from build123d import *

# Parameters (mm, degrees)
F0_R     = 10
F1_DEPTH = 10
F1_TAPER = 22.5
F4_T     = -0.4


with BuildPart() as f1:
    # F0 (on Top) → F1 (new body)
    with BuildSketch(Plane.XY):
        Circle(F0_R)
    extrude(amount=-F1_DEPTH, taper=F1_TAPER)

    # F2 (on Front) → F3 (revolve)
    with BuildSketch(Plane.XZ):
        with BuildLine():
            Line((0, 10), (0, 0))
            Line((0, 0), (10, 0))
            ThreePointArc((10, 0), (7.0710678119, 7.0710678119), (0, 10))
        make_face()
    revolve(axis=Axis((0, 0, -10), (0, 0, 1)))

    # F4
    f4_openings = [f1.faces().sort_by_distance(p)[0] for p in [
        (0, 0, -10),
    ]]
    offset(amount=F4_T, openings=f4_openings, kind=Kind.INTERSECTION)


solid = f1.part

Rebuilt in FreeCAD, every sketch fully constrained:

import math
import FreeCAD as App
import Part
import Sketcher
from FreeCAD import Vector


def faces_at(feature, points):
    """Names of the faces that lie closest to the given points."""
    faces = feature.Shape.Faces
    near = lambda p: min(range(len(faces)), key=lambda i: faces[i].distToShape(Part.Vertex(*p))[0])
    return sorted({f"Face{near(p) + 1}" for p in points})

doc = App.newDocument("Part")
body = doc.addObject("PartDesign::Body", "Body")

# Sketch on XY plane
sketch1 = body.newObject("Sketcher::SketchObject", "Sketch")
sketch1.AttachmentSupport = (doc.getObject("XY_Plane"), [""])
sketch1.MapMode = "FlatFace"
sketch1.addGeometry(Part.Circle(Vector(0, 0, 0), Vector(0, 0, 1), 10), False)
sketch1.addConstraint([
    Sketcher.Constraint("Coincident", 0, 3, -1, 1),
    Sketcher.Constraint("Diameter", 0, 20.0),
])
pad1 = body.newObject("PartDesign::Pad", "Pad")
pad1.Profile = sketch1
pad1.Length = 10
pad1.Reversed = True
pad1.TaperAngle = -22.5

# Sketch on XZ plane
sketch2 = body.newObject("Sketcher::SketchObject", "Sketch001")
sketch2.AttachmentSupport = (doc.getObject("XZ_Plane"), [""])
sketch2.MapMode = "FlatFace"
sketch2.addGeometry([
    Part.LineSegment(Vector(0, 10, 0), Vector(0, 0, 0)),
    Part.LineSegment(Vector(0, 0, 0), Vector(10, 0, 0)),
    Part.ArcOfCircle(Part.Circle(Vector(0, 0, 0), Vector(0, 0, 1), 10), math.radians(0), math.radians(90)),
], False)
sketch2.addConstraint([
    Sketcher.Constraint("Coincident", 0, 2, 1, 1),
    Sketcher.Constraint("Coincident", 1, 2, 2, 1),
    Sketcher.Constraint("Coincident", 2, 2, 0, 1),
    Sketcher.Constraint("Vertical", 0),
    Sketcher.Constraint("Horizontal", 1),
    Sketcher.Constraint("Coincident", 2, 3, -1, 1),
    Sketcher.Constraint("Coincident", 0, 2, -1, 1),
    Sketcher.Constraint("Radius", 2, 10.0),
])
revolution = body.newObject("PartDesign::Revolution", "Revolution")
revolution.Profile = sketch2
revolution.ReferenceAxis = (sketch2, ["V_Axis"])
revolution.Angle = 360
doc.recompute()

thickness = body.newObject("PartDesign::Thickness", "Thickness")
thickness.Base = (revolution, faces_at(revolution, [(0, 0, -10)]))
thickness.Value = 0.4
thickness.Reversed = True
thickness.Join = "Intersection"

doc.recompute()
